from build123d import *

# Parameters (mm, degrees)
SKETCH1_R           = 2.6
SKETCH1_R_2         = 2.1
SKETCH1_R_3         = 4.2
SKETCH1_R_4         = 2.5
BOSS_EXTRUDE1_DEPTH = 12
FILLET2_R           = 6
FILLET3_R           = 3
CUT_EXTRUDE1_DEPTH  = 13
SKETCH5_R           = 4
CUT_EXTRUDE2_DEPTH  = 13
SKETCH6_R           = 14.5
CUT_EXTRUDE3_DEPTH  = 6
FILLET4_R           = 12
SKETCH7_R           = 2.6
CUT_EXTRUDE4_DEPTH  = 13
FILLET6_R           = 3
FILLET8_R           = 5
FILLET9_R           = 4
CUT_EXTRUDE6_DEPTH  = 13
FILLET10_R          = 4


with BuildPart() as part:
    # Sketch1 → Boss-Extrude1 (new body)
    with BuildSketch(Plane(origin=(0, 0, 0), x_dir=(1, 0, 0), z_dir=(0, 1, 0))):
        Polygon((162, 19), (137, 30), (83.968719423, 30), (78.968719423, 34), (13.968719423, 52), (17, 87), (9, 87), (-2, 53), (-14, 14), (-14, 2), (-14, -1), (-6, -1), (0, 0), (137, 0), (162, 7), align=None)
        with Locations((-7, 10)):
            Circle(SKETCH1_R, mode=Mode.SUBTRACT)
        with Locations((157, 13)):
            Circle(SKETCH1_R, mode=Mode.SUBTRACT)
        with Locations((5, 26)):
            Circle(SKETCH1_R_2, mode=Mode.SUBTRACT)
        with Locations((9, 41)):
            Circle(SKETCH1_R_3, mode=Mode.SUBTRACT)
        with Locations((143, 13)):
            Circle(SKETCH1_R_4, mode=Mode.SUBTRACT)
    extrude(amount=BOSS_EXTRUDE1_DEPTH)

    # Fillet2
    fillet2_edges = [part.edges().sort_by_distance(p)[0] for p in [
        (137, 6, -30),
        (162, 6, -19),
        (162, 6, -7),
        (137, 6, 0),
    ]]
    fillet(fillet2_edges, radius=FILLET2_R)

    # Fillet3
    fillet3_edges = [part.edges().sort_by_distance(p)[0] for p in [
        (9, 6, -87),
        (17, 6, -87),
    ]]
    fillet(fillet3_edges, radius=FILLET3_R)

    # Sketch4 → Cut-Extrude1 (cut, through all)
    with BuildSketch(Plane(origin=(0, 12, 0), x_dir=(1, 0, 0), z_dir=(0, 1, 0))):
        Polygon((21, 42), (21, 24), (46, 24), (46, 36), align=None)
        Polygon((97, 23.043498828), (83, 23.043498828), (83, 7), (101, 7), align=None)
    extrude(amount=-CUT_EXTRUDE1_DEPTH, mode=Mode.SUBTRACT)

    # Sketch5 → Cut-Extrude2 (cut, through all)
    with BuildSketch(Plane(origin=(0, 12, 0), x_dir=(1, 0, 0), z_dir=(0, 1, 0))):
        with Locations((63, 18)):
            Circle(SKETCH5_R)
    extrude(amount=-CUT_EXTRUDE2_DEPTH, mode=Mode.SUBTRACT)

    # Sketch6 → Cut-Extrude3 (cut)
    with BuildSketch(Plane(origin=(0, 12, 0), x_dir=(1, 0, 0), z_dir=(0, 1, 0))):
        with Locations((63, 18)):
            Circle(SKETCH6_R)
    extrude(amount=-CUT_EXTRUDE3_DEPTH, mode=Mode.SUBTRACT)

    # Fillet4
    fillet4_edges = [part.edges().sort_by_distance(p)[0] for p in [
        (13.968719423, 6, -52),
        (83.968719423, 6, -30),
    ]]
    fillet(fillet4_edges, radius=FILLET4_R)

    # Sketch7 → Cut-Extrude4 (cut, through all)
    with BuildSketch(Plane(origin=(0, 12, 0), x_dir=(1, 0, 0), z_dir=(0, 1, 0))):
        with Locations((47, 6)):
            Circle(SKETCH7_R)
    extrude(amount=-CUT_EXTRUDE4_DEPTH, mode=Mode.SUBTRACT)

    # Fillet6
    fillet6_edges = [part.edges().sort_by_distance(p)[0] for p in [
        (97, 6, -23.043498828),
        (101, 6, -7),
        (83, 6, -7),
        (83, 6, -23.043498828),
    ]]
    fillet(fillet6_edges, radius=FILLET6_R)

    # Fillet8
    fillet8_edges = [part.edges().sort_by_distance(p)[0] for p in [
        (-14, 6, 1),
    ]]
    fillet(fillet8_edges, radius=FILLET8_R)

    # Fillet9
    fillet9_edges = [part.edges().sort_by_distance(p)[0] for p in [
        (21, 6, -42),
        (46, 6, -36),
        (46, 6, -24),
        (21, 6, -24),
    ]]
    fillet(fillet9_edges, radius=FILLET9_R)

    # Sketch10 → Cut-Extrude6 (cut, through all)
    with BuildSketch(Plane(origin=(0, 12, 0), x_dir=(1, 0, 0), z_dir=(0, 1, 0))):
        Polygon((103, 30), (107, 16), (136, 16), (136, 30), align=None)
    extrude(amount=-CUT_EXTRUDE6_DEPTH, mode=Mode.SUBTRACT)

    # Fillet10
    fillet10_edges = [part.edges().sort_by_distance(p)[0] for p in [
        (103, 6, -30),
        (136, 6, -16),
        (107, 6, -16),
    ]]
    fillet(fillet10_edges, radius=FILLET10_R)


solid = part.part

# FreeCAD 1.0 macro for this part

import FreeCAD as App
import Part
import Sketcher
from FreeCAD import Vector
Q = App.Units.Quantity


def edges_at(feature, points):
    """Names of the edges that pass closest to the given points."""
    edges = feature.Shape.Edges
    near = lambda p: min(range(len(edges)), key=lambda i: edges[i].distToShape(Part.Vertex(*p))[0])
    return sorted({f"Edge{near(p) + 1}" for p in points})

doc = App.newDocument("Part")
body = doc.addObject("PartDesign::Body", "Body")

sketch1 = body.newObject("Sketcher::SketchObject", "Sketch")
sketch1.AttachmentSupport = (doc.getObject("XZ_Plane"), [""])
sketch1.MapMode = "FlatFace"
sketch1.addGeometry([
    Part.LineSegment(Vector(162, -19, 0), Vector(137, -30, 0)),
    Part.LineSegment(Vector(137, -30, 0), Vector(84, -30, 0)),
    Part.LineSegment(Vector(84, -30, 0), Vector(79, -34, 0)),
    Part.LineSegment(Vector(79, -34, 0), Vector(14, -52, 0)),
    Part.LineSegment(Vector(14, -52, 0), Vector(17, -87, 0)),
    Part.LineSegment(Vector(17, -87, 0), Vector(9, -87, 0)),
    Part.LineSegment(Vector(9, -87, 0), Vector(-2, -53, 0)),
    Part.LineSegment(Vector(-2, -53, 0), Vector(-14, -14, 0)),
    Part.LineSegment(Vector(-14, -14, 0), Vector(-14, 1, 0)),
    Part.LineSegment(Vector(-14, 1, 0), Vector(-6, 1, 0)),
    Part.LineSegment(Vector(-6, 1, 0), Vector(0, 0, 0)),
    Part.LineSegment(Vector(0, 0, 0), Vector(137, 0, 0)),
    Part.LineSegment(Vector(137, 0, 0), Vector(162, -7, 0)),
    Part.LineSegment(Vector(162, -7, 0), Vector(162, -19, 0)),
    Part.Circle(Vector(-7, -10, 0), Vector(0, 0, 1), 2.6),
    Part.Circle(Vector(5, -26, 0), Vector(0, 0, 1), 2.1),
    Part.Circle(Vector(143, -13, 0), Vector(0, 0, 1), 2.5),
    Part.Circle(Vector(157, -13, 0), Vector(0, 0, 1), 2.6),
    Part.Circle(Vector(9, -41, 0), Vector(0, 0, 1), 4.2),
], False)
sketch1.addConstraint([
    Sketcher.Constraint("Coincident", 0, 2, 1, 1),
    Sketcher.Constraint("Coincident", 1, 2, 2, 1),
    Sketcher.Constraint("Coincident", 2, 2, 3, 1),
    Sketcher.Constraint("Coincident", 3, 2, 4, 1),
    Sketcher.Constraint("Coincident", 4, 2, 5, 1),
    Sketcher.Constraint("Coincident", 5, 2, 6, 1),
    Sketcher.Constraint("Coincident", 6, 2, 7, 1),
    Sketcher.Constraint("Coincident", 7, 2, 8, 1),
    Sketcher.Constraint("Coincident", 8, 2, 9, 1),
    Sketcher.Constraint("Coincident", 9, 2, 10, 1),
    Sketcher.Constraint("Coincident", 10, 2, 11, 1),
    Sketcher.Constraint("Coincident", 11, 2, 12, 1),
    Sketcher.Constraint("Coincident", 12, 2, 13, 1),
    Sketcher.Constraint("Coincident", 13, 2, 0, 1),
    Sketcher.Constraint("Horizontal", 1),
    Sketcher.Constraint("Horizontal", 5),
    Sketcher.Constraint("Vertical", 8),
    Sketcher.Constraint("Horizontal", 9),
    Sketcher.Constraint("Horizontal", 11),
    Sketcher.Constraint("Vertical", 13),
    Sketcher.Constraint("Coincident", 10, 2, -1, 1),
    Sketcher.Constraint("Equal", 14, 17),
    Sketcher.Constraint("Horizontal", 16, 3, 17, 3),
    Sketcher.Constraint("Vertical", 18, 3, 5, 2),
    Sketcher.Constraint("Vertical", 0, 2, 11, 2),
    Sketcher.Constraint("Equal", 5, 9),
    Sketcher.Constraint("Diameter", 16, Q("5 mm")),
    Sketcher.Constraint("Diameter", 14, Q("5.2 mm")),
    Sketcher.Constraint("Diameter", 15, Q("4.2 mm")),
    Sketcher.Constraint("Diameter", 18, Q("8.4 mm")),
    Sketcher.Constraint("DistanceX", 5, 2, 5, 1, Q("8 mm")),
    Sketcher.Constraint("DistanceX", 11, 1, 11, 2, Q("137 mm")),
    Sketcher.Constraint("DistanceY", 8, 1, 8, 2, Q("15 mm")),
    Sketcher.Constraint("DistanceY", 13, 2, 13, 1, Q("12 mm")),
    Sketcher.Constraint("DistanceX", 14, 3, -1, 1, Q("7 mm")),
    Sketcher.Constraint("DistanceY", 14, 3, -1, 1, Q("10 mm")),
    Sketcher.Constraint("DistanceX", -1, 1, 15, 3, Q("5 mm")),
    Sketcher.Constraint("DistanceY", 15, 3, -1, 1, Q("26 mm")),
    Sketcher.Constraint("DistanceX", -1, 1, 16, 3, Q("143 mm")),
    Sketcher.Constraint("DistanceY", 16, 3, -1, 1, Q("13 mm")),
    Sketcher.Constraint("DistanceX", -1, 1, 17, 3, Q("157 mm")),
    Sketcher.Constraint("DistanceX", -1, 1, 18, 3, Q("9 mm")),
    Sketcher.Constraint("DistanceY", 18, 3, -1, 1, Q("41 mm")),
    Sketcher.Constraint("DistanceY", 0, 2, -1, 1, Q("30 mm")),
    Sketcher.Constraint("DistanceY", 2, 2, -1, 1, Q("34 mm")),
    Sketcher.Constraint("DistanceY", 3, 2, -1, 1, Q("52 mm")),
    Sketcher.Constraint("DistanceY", 4, 2, -1, 1, Q("87 mm")),
    Sketcher.Constraint("DistanceX", 6, 2, -1, 1, Q("2 mm")),
    Sketcher.Constraint("DistanceY", 6, 2, -1, 1, Q("53 mm")),
    Sketcher.Constraint("DistanceX", 7, 2, -1, 1, Q("14 mm")),
    Sketcher.Constraint("DistanceY", 7, 2, -1, 1, Q("14 mm")),
    Sketcher.Constraint("DistanceX", -1, 1, 12, 2, Q("162 mm")),
    Sketcher.Constraint("DistanceY", 12, 2, -1, 1, Q("7 mm")),
    Sketcher.Constraint("DistanceX", 2, 2, 1, 2, Q("5 mm")),
    Sketcher.Constraint("DistanceX", 3, 2, 2, 2, Q("65 mm")),
    Sketcher.Constraint("DistanceX", 1, 2, 1, 1, Q("53.031281 mm")),
])
pad1 = body.newObject("PartDesign::Pad", "Pad")
pad1.Profile = sketch1
pad1.Length = 12
pad1.Reversed = True
doc.recompute()

fillet = body.newObject("PartDesign::Fillet", "Fillet")
fillet.Base = (pad1, edges_at(pad1, [
    (137, 6, -30),
    (162, 6, -19),
    (162, 6, -7),
    (137, 6, 0),
]))
fillet.Radius = 6
doc.recompute()

fillet2 = body.newObject("PartDesign::Fillet", "Fillet001")
fillet2.Base = (fillet, edges_at(fillet, [(9, 6, -87), (17, 6, -87)]))
fillet2.Radius = 3

sketch2 = body.newObject("Sketcher::SketchObject", "Sketch001")
sketch2.AttachmentSupport = (doc.getObject("XZ_Plane"), [""])
sketch2.MapMode = "FlatFace"
sketch2.AttachmentOffset = App.Placement(Vector(0, 0, -12), App.Rotation())
sketch2.addGeometry([
    Part.LineSegment(Vector(21, -42, 0), Vector(21, -24, 0)),
    Part.LineSegment(Vector(21, -24, 0), Vector(46, -24, 0)),
    Part.LineSegment(Vector(46, -24, 0), Vector(46, -36, 0)),
    Part.LineSegment(Vector(46, -36, 0), Vector(21, -42, 0)),
    Part.LineSegment(Vector(97, -23, 0), Vector(83, -23, 0)),
    Part.LineSegment(Vector(83, -23, 0), Vector(83, -7, 0)),
    Part.LineSegment(Vector(83, -7, 0), Vector(101, -7, 0)),
    Part.LineSegment(Vector(101, -7, 0), Vector(97, -23, 0)),
], False)
sketch2.addConstraint([
    Sketcher.Constraint("Coincident", 0, 2, 1, 1),
    Sketcher.Constraint("Coincident", 1, 2, 2, 1),
    Sketcher.Constraint("Coincident", 2, 2, 3, 1),
    Sketcher.Constraint("Coincident", 3, 2, 0, 1),
    Sketcher.Constraint("Coincident", 4, 2, 5, 1),
    Sketcher.Constraint("Coincident", 5, 2, 6, 1),
    Sketcher.Constraint("Coincident", 6, 2, 7, 1),
    Sketcher.Constraint("Coincident", 7, 2, 4, 1),
    Sketcher.Constraint("Vertical", 0),
    Sketcher.Constraint("Horizontal", 1),
    Sketcher.Constraint("Vertical", 2),
    Sketcher.Constraint("Horizontal", 4),
    Sketcher.Constraint("Vertical", 5),
    Sketcher.Constraint("Horizontal", 6),
    Sketcher.Constraint("Equal", 6, 0),
    Sketcher.Constraint("DistanceX", 1, 1, 1, 2, Q("25 mm")),
    Sketcher.Constraint("DistanceX", 4, 2, 4, 1, Q("14 mm")),
    Sketcher.Constraint("DistanceX", 6, 1, 6, 2, Q("18 mm")),
    Sketcher.Constraint("DistanceY", 2, 2, 2, 1, Q("12 mm")),
    Sketcher.Constraint("DistanceX", -1, 1, 0, 2, Q("21 mm")),
    Sketcher.Constraint("DistanceY", 0, 2, -1, 1, Q("24 mm")),
    Sketcher.Constraint("DistanceX", -1, 1, 4, 2, Q("83 mm")),
    Sketcher.Constraint("DistanceY", 5, 2, -1, 1, Q("7 mm")),
    Sketcher.Constraint("DistanceY", 5, 1, 5, 2, Q("16.043499 mm")),
])
pocket1 = body.newObject("PartDesign::Pocket", "Pocket")
pocket1.Profile = sketch2
pocket1.Type = "ThroughAll"
pocket1.Reversed = True

sketch3 = body.newObject("Sketcher::SketchObject", "Sketch002")
sketch3.AttachmentSupport = (doc.getObject("XZ_Plane"), [""])
sketch3.MapMode = "FlatFace"
sketch3.AttachmentOffset = App.Placement(Vector(0, 0, -12), App.Rotation())
sketch3.addGeometry(Part.Circle(Vector(63, -18, 0), Vector(0, 0, 1), 4), False)
sketch3.addConstraint([
    Sketcher.Constraint("Diameter", 0, Q("8 mm")),
    Sketcher.Constraint("DistanceX", -1, 1, 0, 3, Q("63 mm")),
    Sketcher.Constraint("DistanceY", 0, 3, -1, 1, Q("18 mm")),
])
pocket2 = body.newObject("PartDesign::Pocket", "Pocket001")
pocket2.Profile = sketch3
pocket2.Type = "ThroughAll"
pocket2.Reversed = True

sketch4 = body.newObject("Sketcher::SketchObject", "Sketch003")
sketch4.AttachmentSupport = (doc.getObject("XZ_Plane"), [""])
sketch4.MapMode = "FlatFace"
sketch4.AttachmentOffset = App.Placement(Vector(0, 0, -12), App.Rotation())
sketch4.addGeometry(Part.Circle(Vector(63, -18, 0), Vector(0, 0, 1), 14), False)
sketch4.addConstraint([
    Sketcher.Constraint("Diameter", 0, Q("29 mm")),
    Sketcher.Constraint("DistanceX", -1, 1, 0, 3, Q("63 mm")),
    Sketcher.Constraint("DistanceY", 0, 3, -1, 1, Q("18 mm")),
])
pocket3 = body.newObject("PartDesign::Pocket", "Pocket002")
pocket3.Profile = sketch4
pocket3.Length = 6
pocket3.Reversed = True
doc.recompute()

fillet3 = body.newObject("PartDesign::Fillet", "Fillet002")
fillet3.Base = (pocket3, edges_at(pocket3, [(13.969, 6, -52), (83.969, 6, -30)]))
fillet3.Radius = 12

sketch5 = body.newObject("Sketcher::SketchObject", "Sketch004")
sketch5.AttachmentSupport = (doc.getObject("XZ_Plane"), [""])
sketch5.MapMode = "FlatFace"
sketch5.AttachmentOffset = App.Placement(Vector(0, 0, -12), App.Rotation())
sketch5.addGeometry(Part.Circle(Vector(47, -6, 0), Vector(0, 0, 1), 2.6), False)
sketch5.addConstraint([
    Sketcher.Constraint("Diameter", 0, Q("5.2 mm")),
    Sketcher.Constraint("DistanceX", -1, 1, 0, 3, Q("47 mm")),
    Sketcher.Constraint("DistanceY", 0, 3, -1, 1, Q("6 mm")),
])
pocket4 = body.newObject("PartDesign::Pocket", "Pocket003")
pocket4.Profile = sketch5
pocket4.Type = "ThroughAll"
pocket4.Reversed = True
doc.recompute()

fillet4 = body.newObject("PartDesign::Fillet", "Fillet003")
fillet4.Base = (pocket4, edges_at(pocket4, [
    (97, 6, -23.043),
    (101, 6, -7),
    (83, 6, -7),
    (83, 6, -23.043),
]))
fillet4.Radius = 3
doc.recompute()

fillet5 = body.newObject("PartDesign::Fillet", "Fillet004")
fillet5.Base = (fillet4, edges_at(fillet4, [(-14, 6, 1)]))
fillet5.Radius = 5
doc.recompute()

fillet6 = body.newObject("PartDesign::Fillet", "Fillet005")
fillet6.Base = (fillet5, edges_at(fillet5, [
    (21, 6, -42),
    (46, 6, -36),
    (46, 6, -24),
    (21, 6, -24),
]))
fillet6.Radius = 4

sketch6 = body.newObject("Sketcher::SketchObject", "Sketch005")
sketch6.AttachmentSupport = (doc.getObject("XZ_Plane"), [""])
sketch6.MapMode = "FlatFace"
sketch6.AttachmentOffset = App.Placement(Vector(0, 0, -12), App.Rotation())
sketch6.addGeometry([
    Part.LineSegment(Vector(103, -30, 0), Vector(107, -16, 0)),
    Part.LineSegment(Vector(107, -16, 0), Vector(136, -16, 0)),
    Part.LineSegment(Vector(136, -16, 0), Vector(136, -30, 0)),
    Part.LineSegment(Vector(136, -30, 0), Vector(103, -30, 0)),
], False)
sketch6.addConstraint([
    Sketcher.Constraint("Coincident", 0, 2, 1, 1),
    Sketcher.Constraint("Coincident", 1, 2, 2, 1),
    Sketcher.Constraint("Coincident", 2, 2, 3, 1),
    Sketcher.Constraint("Coincident", 3, 2, 0, 1),
    Sketcher.Constraint("Horizontal", 1),
    Sketcher.Constraint("Vertical", 2),
    Sketcher.Constraint("Horizontal", 3),
    Sketcher.Constraint("DistanceX", 1, 1, 1, 2, Q("29 mm")),
    Sketcher.Constraint("DistanceX", 3, 2, 3, 1, Q("33 mm")),
    Sketcher.Constraint("DistanceY", 2, 2, 2, 1, Q("14 mm")),
    Sketcher.Constraint("DistanceX", -1, 1, 0, 2, Q("107 mm")),
    Sketcher.Constraint("DistanceY", 0, 2, -1, 1, Q("16 mm")),
])
pocket5 = body.newObject("PartDesign::Pocket", "Pocket004")
pocket5.Profile = sketch6
pocket5.Type = "ThroughAll"
pocket5.Reversed = True
doc.recompute()

fillet7 = body.newObject("PartDesign::Fillet", "Fillet006")
fillet7.Base = (pocket5, edges_at(pocket5, [(103, 6, -30), (136, 6, -16), (107, 6, -16)]))
fillet7.Radius = 4

doc.recompute()
